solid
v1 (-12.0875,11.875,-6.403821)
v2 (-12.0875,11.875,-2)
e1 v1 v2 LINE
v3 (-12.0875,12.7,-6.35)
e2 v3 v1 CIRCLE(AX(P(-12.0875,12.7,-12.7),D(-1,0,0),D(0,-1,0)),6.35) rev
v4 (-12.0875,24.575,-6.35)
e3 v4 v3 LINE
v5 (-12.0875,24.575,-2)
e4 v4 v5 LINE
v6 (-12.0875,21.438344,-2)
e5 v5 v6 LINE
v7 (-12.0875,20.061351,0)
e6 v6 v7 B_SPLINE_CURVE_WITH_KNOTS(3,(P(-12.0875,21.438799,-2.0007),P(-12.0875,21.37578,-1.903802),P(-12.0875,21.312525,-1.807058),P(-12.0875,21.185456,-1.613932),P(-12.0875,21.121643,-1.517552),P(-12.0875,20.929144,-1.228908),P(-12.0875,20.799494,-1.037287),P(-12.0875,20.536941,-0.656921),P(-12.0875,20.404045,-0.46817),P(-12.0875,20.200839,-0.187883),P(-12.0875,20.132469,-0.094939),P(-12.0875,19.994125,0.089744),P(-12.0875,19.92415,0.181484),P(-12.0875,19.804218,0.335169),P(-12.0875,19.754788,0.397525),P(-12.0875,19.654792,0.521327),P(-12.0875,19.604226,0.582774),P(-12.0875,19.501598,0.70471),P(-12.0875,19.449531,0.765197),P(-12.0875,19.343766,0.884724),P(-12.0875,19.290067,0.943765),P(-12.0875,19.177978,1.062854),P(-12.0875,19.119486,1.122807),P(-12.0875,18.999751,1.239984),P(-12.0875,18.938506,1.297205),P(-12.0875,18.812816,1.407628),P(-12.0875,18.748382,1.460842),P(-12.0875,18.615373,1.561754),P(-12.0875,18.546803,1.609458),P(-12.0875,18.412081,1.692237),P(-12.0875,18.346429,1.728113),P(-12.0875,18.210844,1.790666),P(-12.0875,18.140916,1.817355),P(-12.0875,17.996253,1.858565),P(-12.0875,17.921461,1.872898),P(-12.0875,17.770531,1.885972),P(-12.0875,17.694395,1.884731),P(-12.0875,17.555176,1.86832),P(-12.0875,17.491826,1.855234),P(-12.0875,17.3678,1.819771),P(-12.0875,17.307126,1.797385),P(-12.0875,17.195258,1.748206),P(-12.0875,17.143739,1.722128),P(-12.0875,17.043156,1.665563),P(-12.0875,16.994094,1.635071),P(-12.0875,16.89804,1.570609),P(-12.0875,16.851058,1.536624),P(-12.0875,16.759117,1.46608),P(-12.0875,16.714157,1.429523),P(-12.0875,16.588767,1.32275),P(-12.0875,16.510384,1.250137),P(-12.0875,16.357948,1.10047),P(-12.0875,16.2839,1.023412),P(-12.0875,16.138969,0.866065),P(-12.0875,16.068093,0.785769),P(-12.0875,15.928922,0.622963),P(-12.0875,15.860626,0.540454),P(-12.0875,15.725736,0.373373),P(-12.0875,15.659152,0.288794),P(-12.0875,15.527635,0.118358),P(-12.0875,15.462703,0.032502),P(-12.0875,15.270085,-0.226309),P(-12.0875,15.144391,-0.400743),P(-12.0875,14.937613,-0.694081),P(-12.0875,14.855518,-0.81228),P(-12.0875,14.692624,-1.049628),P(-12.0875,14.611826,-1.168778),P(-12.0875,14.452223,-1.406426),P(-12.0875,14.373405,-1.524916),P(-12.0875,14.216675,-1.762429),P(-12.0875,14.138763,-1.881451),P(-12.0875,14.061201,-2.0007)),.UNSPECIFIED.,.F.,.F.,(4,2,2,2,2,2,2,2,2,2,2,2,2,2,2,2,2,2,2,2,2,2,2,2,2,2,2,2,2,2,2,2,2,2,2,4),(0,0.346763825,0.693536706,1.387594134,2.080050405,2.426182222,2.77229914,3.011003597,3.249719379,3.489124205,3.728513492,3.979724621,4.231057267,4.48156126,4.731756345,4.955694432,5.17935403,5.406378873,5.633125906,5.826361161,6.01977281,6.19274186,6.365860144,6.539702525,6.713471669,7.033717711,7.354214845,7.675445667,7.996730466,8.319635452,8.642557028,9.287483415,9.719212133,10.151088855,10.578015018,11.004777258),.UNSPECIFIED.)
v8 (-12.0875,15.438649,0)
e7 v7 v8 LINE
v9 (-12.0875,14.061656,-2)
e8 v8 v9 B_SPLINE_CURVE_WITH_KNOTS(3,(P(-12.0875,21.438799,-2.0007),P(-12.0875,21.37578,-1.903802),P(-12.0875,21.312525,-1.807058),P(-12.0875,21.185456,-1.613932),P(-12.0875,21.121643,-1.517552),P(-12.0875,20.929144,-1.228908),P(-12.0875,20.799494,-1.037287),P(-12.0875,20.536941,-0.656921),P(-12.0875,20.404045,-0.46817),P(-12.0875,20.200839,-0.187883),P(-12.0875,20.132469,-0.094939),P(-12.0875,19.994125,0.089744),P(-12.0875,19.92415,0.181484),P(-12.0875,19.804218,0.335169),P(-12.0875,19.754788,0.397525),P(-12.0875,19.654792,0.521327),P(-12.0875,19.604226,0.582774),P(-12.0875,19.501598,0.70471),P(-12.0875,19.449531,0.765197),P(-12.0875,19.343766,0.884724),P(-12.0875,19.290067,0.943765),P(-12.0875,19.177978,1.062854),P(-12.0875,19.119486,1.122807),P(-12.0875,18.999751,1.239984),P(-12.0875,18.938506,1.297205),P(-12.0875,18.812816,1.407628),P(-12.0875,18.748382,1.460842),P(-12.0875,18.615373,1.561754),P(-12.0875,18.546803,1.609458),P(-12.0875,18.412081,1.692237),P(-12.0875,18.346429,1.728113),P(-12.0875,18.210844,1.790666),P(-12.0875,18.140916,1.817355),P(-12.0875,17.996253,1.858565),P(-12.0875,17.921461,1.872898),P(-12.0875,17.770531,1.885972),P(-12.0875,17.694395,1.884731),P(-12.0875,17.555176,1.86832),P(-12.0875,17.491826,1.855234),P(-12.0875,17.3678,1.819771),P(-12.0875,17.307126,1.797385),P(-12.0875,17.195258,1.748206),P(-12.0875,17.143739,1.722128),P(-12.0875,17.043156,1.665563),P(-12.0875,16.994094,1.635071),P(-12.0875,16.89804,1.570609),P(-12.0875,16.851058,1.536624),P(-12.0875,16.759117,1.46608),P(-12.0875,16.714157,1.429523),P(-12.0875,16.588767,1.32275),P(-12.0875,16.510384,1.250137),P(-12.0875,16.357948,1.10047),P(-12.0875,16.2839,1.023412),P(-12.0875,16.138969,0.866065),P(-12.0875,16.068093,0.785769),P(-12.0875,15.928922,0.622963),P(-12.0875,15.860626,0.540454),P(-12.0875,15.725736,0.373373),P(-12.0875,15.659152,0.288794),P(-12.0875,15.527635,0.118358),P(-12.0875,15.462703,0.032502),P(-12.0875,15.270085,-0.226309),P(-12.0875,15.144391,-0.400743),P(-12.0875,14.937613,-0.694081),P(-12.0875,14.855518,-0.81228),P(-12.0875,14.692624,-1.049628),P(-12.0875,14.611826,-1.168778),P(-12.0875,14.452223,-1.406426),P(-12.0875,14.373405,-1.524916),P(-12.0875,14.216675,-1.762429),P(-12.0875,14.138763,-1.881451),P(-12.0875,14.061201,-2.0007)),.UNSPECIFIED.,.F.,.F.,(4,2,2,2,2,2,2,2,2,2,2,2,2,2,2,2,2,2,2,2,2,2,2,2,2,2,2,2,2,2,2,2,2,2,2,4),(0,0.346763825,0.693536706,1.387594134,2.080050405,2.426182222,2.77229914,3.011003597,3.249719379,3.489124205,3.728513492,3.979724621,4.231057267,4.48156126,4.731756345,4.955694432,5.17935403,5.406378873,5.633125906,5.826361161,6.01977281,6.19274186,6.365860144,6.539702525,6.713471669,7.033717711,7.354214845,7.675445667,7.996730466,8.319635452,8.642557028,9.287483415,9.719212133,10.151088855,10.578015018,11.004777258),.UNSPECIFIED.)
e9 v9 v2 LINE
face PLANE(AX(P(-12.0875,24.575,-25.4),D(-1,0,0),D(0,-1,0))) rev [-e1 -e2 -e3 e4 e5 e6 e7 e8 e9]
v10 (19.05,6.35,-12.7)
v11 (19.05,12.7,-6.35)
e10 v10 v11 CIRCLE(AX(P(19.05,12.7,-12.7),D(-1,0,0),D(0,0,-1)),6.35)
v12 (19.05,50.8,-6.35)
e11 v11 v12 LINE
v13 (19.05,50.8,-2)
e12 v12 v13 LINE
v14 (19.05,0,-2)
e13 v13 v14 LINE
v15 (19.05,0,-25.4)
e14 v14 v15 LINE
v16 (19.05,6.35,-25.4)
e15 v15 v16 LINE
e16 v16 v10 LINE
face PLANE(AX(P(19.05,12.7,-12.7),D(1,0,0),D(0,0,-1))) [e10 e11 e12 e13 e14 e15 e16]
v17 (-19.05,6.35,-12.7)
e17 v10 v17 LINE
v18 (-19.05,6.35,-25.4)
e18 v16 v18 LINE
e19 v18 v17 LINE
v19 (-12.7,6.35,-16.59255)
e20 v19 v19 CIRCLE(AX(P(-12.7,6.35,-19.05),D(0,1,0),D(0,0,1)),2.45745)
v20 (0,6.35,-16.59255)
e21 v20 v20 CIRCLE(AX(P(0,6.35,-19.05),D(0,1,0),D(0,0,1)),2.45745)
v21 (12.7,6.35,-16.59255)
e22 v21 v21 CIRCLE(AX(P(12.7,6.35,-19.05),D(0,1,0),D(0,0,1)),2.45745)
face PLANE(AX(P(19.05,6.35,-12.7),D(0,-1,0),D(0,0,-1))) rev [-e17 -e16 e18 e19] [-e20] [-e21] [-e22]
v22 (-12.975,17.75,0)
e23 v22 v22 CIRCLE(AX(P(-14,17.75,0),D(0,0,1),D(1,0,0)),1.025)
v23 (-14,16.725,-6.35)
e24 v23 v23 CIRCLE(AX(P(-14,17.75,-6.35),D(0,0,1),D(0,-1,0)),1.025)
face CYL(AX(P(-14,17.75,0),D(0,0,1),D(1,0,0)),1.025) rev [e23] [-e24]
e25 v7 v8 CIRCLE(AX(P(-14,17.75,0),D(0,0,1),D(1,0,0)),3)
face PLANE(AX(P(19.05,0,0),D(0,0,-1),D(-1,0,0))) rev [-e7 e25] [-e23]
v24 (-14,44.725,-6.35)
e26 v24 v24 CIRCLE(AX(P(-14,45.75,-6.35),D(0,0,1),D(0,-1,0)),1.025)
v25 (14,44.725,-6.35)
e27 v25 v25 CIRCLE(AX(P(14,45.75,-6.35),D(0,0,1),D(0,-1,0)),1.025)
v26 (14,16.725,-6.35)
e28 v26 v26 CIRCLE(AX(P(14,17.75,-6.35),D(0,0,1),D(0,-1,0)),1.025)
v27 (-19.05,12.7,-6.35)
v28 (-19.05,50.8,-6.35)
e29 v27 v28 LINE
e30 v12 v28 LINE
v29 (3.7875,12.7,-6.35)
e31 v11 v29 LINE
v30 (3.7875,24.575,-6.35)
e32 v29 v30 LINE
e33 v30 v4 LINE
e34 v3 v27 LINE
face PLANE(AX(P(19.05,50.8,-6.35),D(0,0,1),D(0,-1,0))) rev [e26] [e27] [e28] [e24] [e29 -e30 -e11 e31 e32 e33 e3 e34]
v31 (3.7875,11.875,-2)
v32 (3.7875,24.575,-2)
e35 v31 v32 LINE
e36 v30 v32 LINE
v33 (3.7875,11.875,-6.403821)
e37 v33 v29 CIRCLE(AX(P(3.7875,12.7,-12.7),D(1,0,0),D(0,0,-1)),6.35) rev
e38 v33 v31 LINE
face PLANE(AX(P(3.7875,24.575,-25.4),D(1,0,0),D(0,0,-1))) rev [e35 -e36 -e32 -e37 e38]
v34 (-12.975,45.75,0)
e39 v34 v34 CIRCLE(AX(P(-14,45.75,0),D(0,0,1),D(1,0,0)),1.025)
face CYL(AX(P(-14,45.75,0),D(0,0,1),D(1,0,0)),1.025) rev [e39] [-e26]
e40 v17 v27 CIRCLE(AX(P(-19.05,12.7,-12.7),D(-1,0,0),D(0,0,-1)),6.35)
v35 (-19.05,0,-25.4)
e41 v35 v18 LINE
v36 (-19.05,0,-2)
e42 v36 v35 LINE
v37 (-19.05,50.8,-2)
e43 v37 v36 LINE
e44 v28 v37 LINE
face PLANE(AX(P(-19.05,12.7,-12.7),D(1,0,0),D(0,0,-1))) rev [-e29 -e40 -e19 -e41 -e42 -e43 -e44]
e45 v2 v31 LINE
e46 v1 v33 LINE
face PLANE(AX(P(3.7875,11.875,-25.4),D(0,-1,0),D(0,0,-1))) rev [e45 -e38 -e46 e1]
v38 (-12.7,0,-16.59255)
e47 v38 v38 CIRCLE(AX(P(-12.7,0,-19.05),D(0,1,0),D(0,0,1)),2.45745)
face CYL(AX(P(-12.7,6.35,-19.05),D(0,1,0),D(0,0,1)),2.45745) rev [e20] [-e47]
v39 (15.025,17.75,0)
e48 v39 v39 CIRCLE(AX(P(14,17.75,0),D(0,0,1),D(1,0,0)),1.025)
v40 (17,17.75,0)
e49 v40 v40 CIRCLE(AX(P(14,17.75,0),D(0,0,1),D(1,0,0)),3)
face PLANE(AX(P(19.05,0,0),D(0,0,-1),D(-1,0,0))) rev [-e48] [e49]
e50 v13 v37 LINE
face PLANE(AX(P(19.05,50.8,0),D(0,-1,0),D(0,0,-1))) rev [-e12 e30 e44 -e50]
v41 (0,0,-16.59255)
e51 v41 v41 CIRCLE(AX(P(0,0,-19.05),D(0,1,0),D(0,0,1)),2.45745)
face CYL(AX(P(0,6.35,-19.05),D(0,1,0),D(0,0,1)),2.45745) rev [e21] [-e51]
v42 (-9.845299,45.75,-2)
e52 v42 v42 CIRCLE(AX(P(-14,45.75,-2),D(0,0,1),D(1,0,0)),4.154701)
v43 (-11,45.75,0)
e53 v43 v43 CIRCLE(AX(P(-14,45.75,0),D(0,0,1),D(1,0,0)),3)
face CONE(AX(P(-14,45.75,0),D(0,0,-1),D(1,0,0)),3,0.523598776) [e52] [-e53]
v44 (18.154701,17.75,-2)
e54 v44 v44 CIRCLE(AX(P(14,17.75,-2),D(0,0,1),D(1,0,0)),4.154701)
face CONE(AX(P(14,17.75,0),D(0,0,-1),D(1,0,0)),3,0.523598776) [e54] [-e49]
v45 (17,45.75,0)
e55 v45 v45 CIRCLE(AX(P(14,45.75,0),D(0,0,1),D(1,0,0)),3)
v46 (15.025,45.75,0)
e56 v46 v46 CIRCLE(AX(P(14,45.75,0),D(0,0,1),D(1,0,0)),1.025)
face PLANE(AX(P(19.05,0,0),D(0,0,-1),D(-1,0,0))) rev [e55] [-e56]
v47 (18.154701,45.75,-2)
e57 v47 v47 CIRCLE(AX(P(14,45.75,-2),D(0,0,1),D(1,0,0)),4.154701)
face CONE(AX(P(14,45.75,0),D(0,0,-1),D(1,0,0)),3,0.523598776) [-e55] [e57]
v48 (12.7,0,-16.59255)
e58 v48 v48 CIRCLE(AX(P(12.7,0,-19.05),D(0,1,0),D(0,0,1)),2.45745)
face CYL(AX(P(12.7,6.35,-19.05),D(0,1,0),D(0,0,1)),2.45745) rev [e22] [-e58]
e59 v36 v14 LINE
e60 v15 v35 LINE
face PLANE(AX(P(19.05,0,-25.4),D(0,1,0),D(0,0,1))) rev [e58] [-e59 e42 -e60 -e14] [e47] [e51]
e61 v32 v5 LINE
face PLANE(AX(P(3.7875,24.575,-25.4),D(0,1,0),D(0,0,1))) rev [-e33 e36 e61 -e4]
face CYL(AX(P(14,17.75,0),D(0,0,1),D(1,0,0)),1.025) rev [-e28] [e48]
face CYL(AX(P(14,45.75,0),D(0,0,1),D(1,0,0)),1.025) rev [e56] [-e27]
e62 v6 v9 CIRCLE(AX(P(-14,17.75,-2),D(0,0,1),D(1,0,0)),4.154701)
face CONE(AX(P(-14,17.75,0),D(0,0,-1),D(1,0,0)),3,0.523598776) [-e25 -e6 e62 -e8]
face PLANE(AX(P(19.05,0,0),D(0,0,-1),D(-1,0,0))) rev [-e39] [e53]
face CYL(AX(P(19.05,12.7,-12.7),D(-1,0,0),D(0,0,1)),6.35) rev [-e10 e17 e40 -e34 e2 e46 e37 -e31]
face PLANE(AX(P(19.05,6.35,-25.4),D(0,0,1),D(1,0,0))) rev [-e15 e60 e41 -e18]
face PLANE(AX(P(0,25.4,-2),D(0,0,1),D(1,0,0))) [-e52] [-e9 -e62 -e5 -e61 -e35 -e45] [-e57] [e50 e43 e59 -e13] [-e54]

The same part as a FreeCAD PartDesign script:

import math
import FreeCAD as App
import Part
import Sketcher

V = App.Vector
Q = App.Units.Quantity

doc = App.newDocument("Part")
body = doc.addObject("PartDesign::Body", "Body")

# Sketch on YZ plane
sketch1 = doc.addObject("Sketcher::SketchObject", "Sketch")
body.addObject(sketch1)
sketch1.AttachmentSupport = (doc.YZ_Plane, [""])
sketch1.MapMode = "FlatFace"
sketch1.addGeometry(Part.LineSegment(V(0, 0, 0), V(0, -25, 0)), False)
sketch1.addGeometry(Part.LineSegment(V(0, -25, 0), V(6, -25, 0)), False)
sketch1.addGeometry(Part.LineSegment(V(6, -25, 0), V(6, -13, 0)), False)
sketch1.addGeometry(Part.ArcOfCircle(Part.Circle(V(13, -13, 0), V(0, 0, 1), 6), math.radians(90), math.radians(180)), False)
sketch1.addGeometry(Part.LineSegment(V(13, -6, 0), V(51, -6, 0)), False)
sketch1.addGeometry(Part.LineSegment(V(51, -6, 0), V(51, 0, 0)), False)
sketch1.addGeometry(Part.LineSegment(V(51, 0, 0), V(0, 0, 0)), False)
sketch1.addConstraint(Sketcher.Constraint("Coincident", 0, 2, 1, 1))
sketch1.addConstraint(Sketcher.Constraint("Coincident", 1, 2, 2, 1))
sketch1.addConstraint(Sketcher.Constraint("Tangent", 2, 2, 3, 2))
sketch1.addConstraint(Sketcher.Constraint("Tangent", 3, 1, 4, 1))
sketch1.addConstraint(Sketcher.Constraint("Coincident", 4, 2, 5, 1))
sketch1.addConstraint(Sketcher.Constraint("Coincident", 5, 2, 6, 1))
sketch1.addConstraint(Sketcher.Constraint("Coincident", 6, 2, 0, 1))
sketch1.addConstraint(Sketcher.Constraint("Vertical", 0))
sketch1.addConstraint(Sketcher.Constraint("Horizontal", 1))
sketch1.addConstraint(Sketcher.Constraint("Vertical", 2))
sketch1.addConstraint(Sketcher.Constraint("Horizontal", 4))
sketch1.addConstraint(Sketcher.Constraint("Vertical", 5))
sketch1.addConstraint(Sketcher.Constraint("Horizontal", 6))
sketch1.addConstraint(Sketcher.Constraint("Coincident", 6, 2, -1, 1))
sketch1.addConstraint(Sketcher.Constraint("Equal", 1, 5))
sketch1.addConstraint(Sketcher.Constraint("DistanceX", 6, 2, 6, 1, Q("2 in")))
sketch1.addConstraint(Sketcher.Constraint("DistanceY", 0, 2, 0, 1, Q("1 in")))
sketch1.addConstraint(Sketcher.Constraint("Radius", 3, Q("0.25 in")))
sketch1.addConstraint(Sketcher.Constraint("DistanceX", 4, 1, 4, 2, Q("1.5 in")))
pad1 = doc.addObject("PartDesign::Pad", "Pad")
body.addObject(pad1)
pad1.Profile = sketch1
pad1.Length = Q("1.5 in")
pad1.Midplane = True

# Sketch on XY plane
sketch2 = doc.addObject("Sketcher::SketchObject", "Sketch001")
body.addObject(sketch2)
sketch2.AttachmentSupport = (doc.XY_Plane, [""])
sketch2.MapMode = "FlatFace"
sketch2.addGeometry(Part.Circle(V(-14, 45.8, 0), V(0, 0, 1), 1), False)
sketch2.addGeometry(Part.Circle(V(14, 45.8, 0), V(0, 0, 1), 1), False)
sketch2.addGeometry(Part.Circle(V(14, 17.8, 0), V(0, 0, 1), 1), False)
sketch2.addGeometry(Part.Circle(V(-14, 17.8, 0), V(0, 0, 1), 1), False)
sketch2.addConstraint(Sketcher.Constraint("Equal", 0, 1))
sketch2.addConstraint(Sketcher.Constraint("Equal", 1, 2))
sketch2.addConstraint(Sketcher.Constraint("Equal", 2, 3))
sketch2.addConstraint(Sketcher.Constraint("Symmetric", 0, 3, 1, 3, -2))
sketch2.addConstraint(Sketcher.Constraint("Symmetric", 2, 3, 3, 3, -2))
sketch2.addConstraint(Sketcher.Constraint("Vertical", 1, 3, 2, 3))
sketch2.addConstraint(Sketcher.Constraint("Diameter", 0, Q("2.05 mm")))
sketch2.addConstraint(Sketcher.Constraint("DistanceX", 0, 3, -1, 1, Q("14 mm")))
sketch2.addConstraint(Sketcher.Constraint("DistanceY", -1, 1, 0, 3, Q("45.75 mm")))
sketch2.addConstraint(Sketcher.Constraint("DistanceY", -1, 1, 2, 3, Q("17.75 mm")))
doc.recompute()
hole = doc.addObject("PartDesign::Hole", "Hole")
body.addObject(hole)
hole.Profile = sketch2
hole.ThreadType = "None"
hole.Diameter = 2.05
hole.DepthType = "ThroughAll"

# Sketch on XY plane
sketch3 = doc.addObject("Sketcher::SketchObject", "Sketch002")
body.addObject(sketch3)
sketch3.AttachmentSupport = (doc.XY_Plane, [""])
sketch3.MapMode = "FlatFace"
sketch3.addGeometry(Part.LineSegment(V(-28, 59.8, 0), V(-28, -9, 0)), False)
sketch3.addGeometry(Part.LineSegment(V(-28, -9, 0), V(28, -9, 0)), False)
sketch3.addGeometry(Part.LineSegment(V(28, -9, 0), V(28, 59.8, 0)), False)
sketch3.addGeometry(Part.LineSegment(V(28, 59.8, 0), V(-28, 59.8, 0)), False)
sketch3.addGeometry(Part.Circle(V(-14, 17.8, 0), V(0, 0, 1), 3), False)
sketch3.addGeometry(Part.Circle(V(14, 17.8, 0), V(0, 0, 1), 3), False)
sketch3.addGeometry(Part.Circle(V(-14, 45.8, 0), V(0, 0, 1), 3), False)
sketch3.addGeometry(Part.Circle(V(14, 45.8, 0), V(0, 0, 1), 3), False)
sketch3.addConstraint(Sketcher.Constraint("Coincident", 0, 2, 1, 1))
sketch3.addConstraint(Sketcher.Constraint("Coincident", 1, 2, 2, 1))
sketch3.addConstraint(Sketcher.Constraint("Coincident", 2, 2, 3, 1))
sketch3.addConstraint(Sketcher.Constraint("Coincident", 3, 2, 0, 1))
sketch3.addConstraint(Sketcher.Constraint("Vertical", 0))
sketch3.addConstraint(Sketcher.Constraint("Horizontal", 1))
sketch3.addConstraint(Sketcher.Constraint("Vertical", 2))
sketch3.addConstraint(Sketcher.Constraint("Horizontal", 3))
sketch3.addConstraint(Sketcher.Constraint("Equal", 4, 5))
sketch3.addConstraint(Sketcher.Constraint("Equal", 5, 6))
sketch3.addConstraint(Sketcher.Constraint("Equal", 6, 7))
sketch3.addConstraint(Sketcher.Constraint("Symmetric", 4, 3, 5, 3, -2))
sketch3.addConstraint(Sketcher.Constraint("Symmetric", 6, 3, 7, 3, -2))
sketch3.addConstraint(Sketcher.Constraint("Vertical", 4, 3, 6, 3))
sketch3.addConstraint(Sketcher.Constraint("Diameter", 4, Q("6 mm")))
sketch3.addConstraint(Sketcher.Constraint("DistanceX", 1, 1, 1, 2, Q("56.088 mm")))
sketch3.addConstraint(Sketcher.Constraint("DistanceY", 0, 2, 0, 1, Q("68.788 mm")))
sketch3.addConstraint(Sketcher.Constraint("DistanceX", 4, 3, -1, 1, Q("14 mm")))
sketch3.addConstraint(Sketcher.Constraint("DistanceY", -1, 1, 4, 3, Q("17.75 mm")))
sketch3.addConstraint(Sketcher.Constraint("DistanceY", -1, 1, 6, 3, Q("45.75 mm")))
sketch3.addConstraint(Sketcher.Constraint("DistanceX", 0, 2, -1, 1, Q("28.044 mm")))
sketch3.addConstraint(Sketcher.Constraint("DistanceY", 0, 2, -1, 1, Q("8.994 mm")))
pocket1 = doc.addObject("PartDesign::Pocket", "Pocket")
body.addObject(pocket1)
pocket1.Profile = sketch3
pocket1.Length = 2
pocket1.TaperAngle = 30

# Sketch on XY plane
sketch4 = doc.addObject("Sketcher::SketchObject", "Sketch003")
body.addObject(sketch4)
sketch4.AttachmentSupport = (doc.XY_Plane, [""])
sketch4.MapMode = "FlatFace"
sketch4.AttachmentOffset = App.Placement(V(0, 0, -2), App.Rotation())
sketch4.addGeometry(Part.LineSegment(V(-12, 25, 0), V(-12, 12, 0)), False)
sketch4.addGeometry(Part.LineSegment(V(-12, 12, 0), V(4, 12, 0)), False)
sketch4.addGeometry(Part.LineSegment(V(4, 12, 0), V(4, 25, 0)), False)
sketch4.addGeometry(Part.LineSegment(V(4, 25, 0), V(-12, 25, 0)), False)
sketch4.addConstraint(Sketcher.Constraint("Coincident", 0, 2, 1, 1))
sketch4.addConstraint(Sketcher.Constraint("Coincident", 1, 2, 2, 1))
sketch4.addConstraint(Sketcher.Constraint("Coincident", 2, 2, 3, 1))
sketch4.addConstraint(Sketcher.Constraint("Coincident", 3, 2, 0, 1))
sketch4.addConstraint(Sketcher.Constraint("Vertical", 0))
sketch4.addConstraint(Sketcher.Constraint("Horizontal", 1))
sketch4.addConstraint(Sketcher.Constraint("Vertical", 2))
sketch4.addConstraint(Sketcher.Constraint("Horizontal", 3))
sketch4.addConstraint(Sketcher.Constraint("DistanceY", 0, 2, 0, 1, Q("0.5 in")))
sketch4.addConstraint(Sketcher.Constraint("DistanceX", 1, 1, 1, 2, Q("0.625 in")))
sketch4.addConstraint(Sketcher.Constraint("DistanceX", 0, 2, -1, 1, Q("12.0875 mm")))
sketch4.addConstraint(Sketcher.Constraint("DistanceY", -1, 1, 0, 2, Q("11.875 mm")))
pocket2 = doc.addObject("PartDesign::Pocket", "Pocket001")
body.addObject(pocket2)
pocket2.Profile = sketch4
pocket2.Type = "ThroughAll"
pocket2.Midplane = True

# Sketch on XZ plane
sketch5 = doc.addObject("Sketcher::SketchObject", "Sketch004")
body.addObject(sketch5)
sketch5.AttachmentSupport = (doc.XZ_Plane, [""])
sketch5.MapMode = "FlatFace"
sketch5.AttachmentOffset = App.Placement(V(0, 0, -0.25 * 25.4), App.Rotation())
sketch5.addGeometry(Part.Circle(V(-12.7, -19.1, 0), V(0, 0, 1), 2.5), False)
sketch5.addGeometry(Part.Circle(V(0, -19.1, 0), V(0, 0, 1), 2.5), False)
sketch5.addGeometry(Part.Circle(V(12.7, -19.1, 0), V(0, 0, 1), 2.5), False)
sketch5.addConstraint(Sketcher.Constraint("Equal", 0, 1))
sketch5.addConstraint(Sketcher.Constraint("Equal", 1, 2))
sketch5.addConstraint(Sketcher.Constraint("Symmetric", 0, 3, 2, 3, -2))
sketch5.addConstraint(Sketcher.Constraint("PointOnObject", 1, 3, -2))
sketch5.addConstraint(Sketcher.Constraint("Horizontal", 0, 3, 1, 3))
sketch5.addConstraint(Sketcher.Constraint("DistanceX", 0, 3, 2, 3, Q("1 in")))
sketch5.addConstraint(Sketcher.Constraint("Diameter", 0, Q("0.1935 in")))
sketch5.addConstraint(Sketcher.Constraint("DistanceY", 0, 3, -1, 1, Q("0.75 in")))
doc.recompute()
hole2 = doc.addObject("PartDesign::Hole", "Hole001")
body.addObject(hole2)
hole2.Profile = sketch5
hole2.ThreadType = "None"
hole2.Diameter = Q("0.1935 in")
hole2.DepthType = "ThroughAll"
hole2.Reversed = True

doc.recompute()
